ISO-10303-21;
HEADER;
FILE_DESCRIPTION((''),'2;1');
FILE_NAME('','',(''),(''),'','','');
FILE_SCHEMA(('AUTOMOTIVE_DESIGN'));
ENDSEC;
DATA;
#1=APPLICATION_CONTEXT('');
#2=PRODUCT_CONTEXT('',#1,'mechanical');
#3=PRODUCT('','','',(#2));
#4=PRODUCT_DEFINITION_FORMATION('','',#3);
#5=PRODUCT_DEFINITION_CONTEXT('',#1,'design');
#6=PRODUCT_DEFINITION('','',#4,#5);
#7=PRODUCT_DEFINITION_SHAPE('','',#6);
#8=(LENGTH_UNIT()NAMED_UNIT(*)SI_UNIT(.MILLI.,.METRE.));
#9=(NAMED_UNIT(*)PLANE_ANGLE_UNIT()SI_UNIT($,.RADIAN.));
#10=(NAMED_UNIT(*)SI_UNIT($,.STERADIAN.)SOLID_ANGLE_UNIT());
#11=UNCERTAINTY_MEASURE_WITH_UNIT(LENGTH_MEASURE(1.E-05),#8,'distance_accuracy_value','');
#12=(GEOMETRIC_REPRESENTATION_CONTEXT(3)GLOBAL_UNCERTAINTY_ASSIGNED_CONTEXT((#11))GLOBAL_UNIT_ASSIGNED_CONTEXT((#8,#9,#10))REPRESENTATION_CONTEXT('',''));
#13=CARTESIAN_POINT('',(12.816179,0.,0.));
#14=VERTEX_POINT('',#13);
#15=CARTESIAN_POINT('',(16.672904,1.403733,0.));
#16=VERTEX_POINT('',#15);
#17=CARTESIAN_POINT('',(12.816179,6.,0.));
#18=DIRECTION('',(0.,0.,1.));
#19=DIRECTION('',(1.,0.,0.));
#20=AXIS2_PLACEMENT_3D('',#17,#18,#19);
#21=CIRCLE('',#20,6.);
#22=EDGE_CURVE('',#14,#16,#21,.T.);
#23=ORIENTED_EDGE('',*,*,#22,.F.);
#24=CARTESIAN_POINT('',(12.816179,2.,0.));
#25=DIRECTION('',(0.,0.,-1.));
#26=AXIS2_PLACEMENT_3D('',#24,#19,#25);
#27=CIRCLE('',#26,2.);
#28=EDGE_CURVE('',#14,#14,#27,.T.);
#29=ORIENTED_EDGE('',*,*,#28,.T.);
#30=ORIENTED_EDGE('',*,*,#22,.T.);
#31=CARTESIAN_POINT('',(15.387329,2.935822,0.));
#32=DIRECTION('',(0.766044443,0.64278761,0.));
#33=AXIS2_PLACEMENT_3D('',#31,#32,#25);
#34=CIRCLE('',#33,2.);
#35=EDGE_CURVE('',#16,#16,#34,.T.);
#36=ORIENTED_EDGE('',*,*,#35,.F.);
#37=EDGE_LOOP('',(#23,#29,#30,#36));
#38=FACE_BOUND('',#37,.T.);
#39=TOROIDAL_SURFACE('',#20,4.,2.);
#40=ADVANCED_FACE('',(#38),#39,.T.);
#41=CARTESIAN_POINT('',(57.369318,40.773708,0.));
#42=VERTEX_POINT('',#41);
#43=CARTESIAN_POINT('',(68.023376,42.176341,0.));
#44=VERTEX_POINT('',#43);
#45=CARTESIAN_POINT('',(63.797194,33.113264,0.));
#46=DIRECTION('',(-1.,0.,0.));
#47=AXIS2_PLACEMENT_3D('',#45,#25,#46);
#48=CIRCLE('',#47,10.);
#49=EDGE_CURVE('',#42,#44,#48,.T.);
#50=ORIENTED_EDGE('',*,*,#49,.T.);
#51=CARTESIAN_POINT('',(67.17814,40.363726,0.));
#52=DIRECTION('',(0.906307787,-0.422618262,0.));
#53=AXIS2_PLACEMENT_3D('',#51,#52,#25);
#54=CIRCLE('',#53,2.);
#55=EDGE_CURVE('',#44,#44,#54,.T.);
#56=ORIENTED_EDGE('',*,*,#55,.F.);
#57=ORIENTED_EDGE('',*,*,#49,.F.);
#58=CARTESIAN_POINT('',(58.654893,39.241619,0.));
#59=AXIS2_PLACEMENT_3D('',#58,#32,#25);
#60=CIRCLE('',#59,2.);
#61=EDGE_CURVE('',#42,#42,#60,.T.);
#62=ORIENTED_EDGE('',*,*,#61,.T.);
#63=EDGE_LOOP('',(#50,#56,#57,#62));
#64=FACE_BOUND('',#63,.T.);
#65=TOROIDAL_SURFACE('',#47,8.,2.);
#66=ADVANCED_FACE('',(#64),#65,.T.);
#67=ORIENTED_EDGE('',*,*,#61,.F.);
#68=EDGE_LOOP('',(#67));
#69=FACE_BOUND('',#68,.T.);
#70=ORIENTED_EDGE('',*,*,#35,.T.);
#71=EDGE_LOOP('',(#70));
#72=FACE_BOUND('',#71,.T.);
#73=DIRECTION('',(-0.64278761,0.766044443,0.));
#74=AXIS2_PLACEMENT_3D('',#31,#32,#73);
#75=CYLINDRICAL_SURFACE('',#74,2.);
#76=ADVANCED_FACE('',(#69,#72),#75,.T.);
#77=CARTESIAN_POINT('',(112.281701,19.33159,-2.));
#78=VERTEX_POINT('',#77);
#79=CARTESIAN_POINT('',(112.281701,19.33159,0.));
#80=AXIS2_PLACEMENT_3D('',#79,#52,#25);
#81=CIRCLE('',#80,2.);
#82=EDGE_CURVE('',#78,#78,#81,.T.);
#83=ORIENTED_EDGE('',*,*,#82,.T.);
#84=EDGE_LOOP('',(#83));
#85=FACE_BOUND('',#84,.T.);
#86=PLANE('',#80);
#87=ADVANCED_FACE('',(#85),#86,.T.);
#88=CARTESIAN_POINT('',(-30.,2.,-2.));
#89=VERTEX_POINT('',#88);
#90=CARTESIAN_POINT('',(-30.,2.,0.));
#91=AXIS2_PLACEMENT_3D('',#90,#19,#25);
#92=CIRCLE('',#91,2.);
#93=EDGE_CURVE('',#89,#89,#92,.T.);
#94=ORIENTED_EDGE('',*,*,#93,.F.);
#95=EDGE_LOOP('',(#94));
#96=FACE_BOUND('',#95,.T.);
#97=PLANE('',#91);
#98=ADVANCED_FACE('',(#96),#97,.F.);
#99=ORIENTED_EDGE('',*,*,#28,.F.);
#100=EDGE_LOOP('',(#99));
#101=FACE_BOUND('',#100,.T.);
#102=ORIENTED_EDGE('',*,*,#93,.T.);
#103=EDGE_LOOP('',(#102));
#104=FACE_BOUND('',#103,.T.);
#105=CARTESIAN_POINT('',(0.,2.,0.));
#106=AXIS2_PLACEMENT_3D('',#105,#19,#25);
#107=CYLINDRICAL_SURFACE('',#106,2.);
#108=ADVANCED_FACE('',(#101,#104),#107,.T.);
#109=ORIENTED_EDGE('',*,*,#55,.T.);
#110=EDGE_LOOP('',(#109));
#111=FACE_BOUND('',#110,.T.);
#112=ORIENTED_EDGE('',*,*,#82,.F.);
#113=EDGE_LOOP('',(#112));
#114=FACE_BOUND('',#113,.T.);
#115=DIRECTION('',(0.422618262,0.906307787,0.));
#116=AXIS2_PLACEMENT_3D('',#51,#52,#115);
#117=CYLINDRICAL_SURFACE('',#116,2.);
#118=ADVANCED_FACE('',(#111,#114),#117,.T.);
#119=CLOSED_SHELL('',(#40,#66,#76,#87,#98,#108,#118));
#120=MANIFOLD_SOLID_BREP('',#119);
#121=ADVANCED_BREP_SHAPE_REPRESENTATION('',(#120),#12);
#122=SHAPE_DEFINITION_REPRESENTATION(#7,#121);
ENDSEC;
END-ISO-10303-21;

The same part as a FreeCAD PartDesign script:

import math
import FreeCAD as App
import Part
import Sketcher
Q = App.Units.Quantity

doc = App.newDocument("Part")
body = doc.addObject("PartDesign::Body", "Body")

# Sketch on YZ plane
sketch1 = body.newObject("Sketcher::SketchObject", "Sketch")
sketch1.AttachmentSupport = (doc.getObject("YZ_Plane"), [""])
sketch1.MapMode = "FlatFace"
sketch1.addGeometry(Part.Circle(App.Vector(2, 0, 0), App.Vector(0, 0, 1), 2), False)
sketch1.addConstraint(Sketcher.Constraint("PointOnObject", 0, 3, -1))
sketch1.addConstraint(Sketcher.Constraint("Diameter", 0, Q("4 mm")))
sketch1.addConstraint(Sketcher.Constraint("DistanceX", -1, 1, 0, 3, Q("2 mm")))

# Sketch on XY plane
sketch2 = body.newObject("Sketcher::SketchObject", "Sketch001")
sketch2.AttachmentSupport = (doc.getObject("XY_Plane"), [""])
sketch2.MapMode = "FlatFace"
sketch2.addGeometry(Part.LineSegment(App.Vector(0, 0, 0), App.Vector(12.816179, 0, 0)), False)
sketch2.addGeometry(Part.ArcOfCircle(Part.Circle(App.Vector(12.816179, 6, 0), App.Vector(0, 0, 1), 6), math.radians(-90), math.radians(-50)), False)
sketch2.addGeometry(Part.LineSegment(App.Vector(16.672904, 1.403733, 0), App.Vector(59.940468, 37.70953, 0)), False)
sketch2.addGeometry(Part.ArcOfCircle(Part.Circle(App.Vector(63.797194, 33.113264, 0), App.Vector(0, 0, 1), 6), math.radians(65), math.radians(130)), False)
sketch2.addGeometry(Part.LineSegment(App.Vector(66.332903, 38.55111, 0), App.Vector(111.436464, 17.518974, 0)), False)
sketch2.addConstraint(Sketcher.Constraint("Tangent", 0, 2, 1, 1))
sketch2.addConstraint(Sketcher.Constraint("Tangent", 1, 2, 2, 1))
sketch2.addConstraint(Sketcher.Constraint("Tangent", 2, 2, 3, 2))
sketch2.addConstraint(Sketcher.Constraint("Tangent", 3, 1, 4, 1))
sketch2.addConstraint(Sketcher.Constraint("Horizontal", 0))
sketch2.addConstraint(Sketcher.Constraint("Coincident", 0, 1, -1, 1))
sketch2.addConstraint(Sketcher.Constraint("Equal", 1, 3))
sketch2.addConstraint(Sketcher.Constraint("Radius", 1, Q("6 mm")))
sketch2.addConstraint(Sketcher.Constraint("Angle", 2, Q("40 deg")))
sketch2.addConstraint(Sketcher.Constraint("Angle", 4, Q("-25 deg")))
sketch2.addConstraint(Sketcher.Constraint("DistanceX", 1, 2, 3, 1, Q("49.659999 mm")))
sketch2.addConstraint(Sketcher.Constraint("DistanceX", 0, 1, 0, 2, Q("12.816179 mm")))
sketch2.addConstraint(Sketcher.Constraint("DistanceX", 3, 1, 4, 2, Q("45.103561 mm")))
doc.recompute()

additivepipe = body.newObject("PartDesign::AdditivePipe", "AdditivePipe")
additivepipe.Profile = sketch1
additivepipe.Spine = (sketch2, ["Edge1", "Edge2", "Edge3", "Edge4", "Edge5"])

# Sketch on YZ plane
sketch3 = body.newObject("Sketcher::SketchObject", "Sketch002")
sketch3.AttachmentSupport = (doc.getObject("YZ_Plane"), [""])
sketch3.MapMode = "FlatFace"
sketch3.addGeometry(Part.Circle(App.Vector(2, 0, 0), App.Vector(0, 0, 1), 2), False)
sketch3.addConstraint(Sketcher.Constraint("PointOnObject", 0, 3, -1))
sketch3.addConstraint(Sketcher.Constraint("Diameter", 0, Q("4 mm")))
sketch3.addConstraint(Sketcher.Constraint("DistanceX", -1, 1, 0, 3, Q("2 mm")))
pad1 = body.newObject("PartDesign::Pad", "Pad")
pad1.Profile = sketch3
pad1.Length = 30
pad1.Reversed = True

doc.recompute()
